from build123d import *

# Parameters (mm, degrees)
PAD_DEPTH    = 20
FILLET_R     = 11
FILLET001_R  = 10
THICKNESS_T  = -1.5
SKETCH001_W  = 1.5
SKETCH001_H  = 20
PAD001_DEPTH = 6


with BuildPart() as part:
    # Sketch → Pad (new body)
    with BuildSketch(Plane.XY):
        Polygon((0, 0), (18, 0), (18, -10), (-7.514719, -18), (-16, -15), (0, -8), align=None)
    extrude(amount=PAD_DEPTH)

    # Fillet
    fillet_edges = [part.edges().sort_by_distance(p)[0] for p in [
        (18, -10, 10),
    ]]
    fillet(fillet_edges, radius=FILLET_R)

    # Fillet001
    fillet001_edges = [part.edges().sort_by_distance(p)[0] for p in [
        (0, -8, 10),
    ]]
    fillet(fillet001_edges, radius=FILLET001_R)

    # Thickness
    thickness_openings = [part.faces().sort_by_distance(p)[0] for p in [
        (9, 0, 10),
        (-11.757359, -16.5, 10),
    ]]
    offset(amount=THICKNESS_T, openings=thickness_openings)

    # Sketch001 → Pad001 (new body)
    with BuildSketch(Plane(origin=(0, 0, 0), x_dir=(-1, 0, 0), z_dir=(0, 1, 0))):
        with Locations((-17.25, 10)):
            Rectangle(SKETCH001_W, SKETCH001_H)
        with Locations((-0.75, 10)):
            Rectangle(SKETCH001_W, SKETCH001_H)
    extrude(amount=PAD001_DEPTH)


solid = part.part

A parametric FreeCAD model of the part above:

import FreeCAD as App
import Part
import Sketcher

V = App.Vector
Q = App.Units.Quantity


def edges_at(feature, points):
    """Names of the edges that pass closest to the given points."""
    edges = feature.Shape.Edges
    near = lambda p: min(range(len(edges)), key=lambda i: edges[i].distToShape(Part.Vertex(*p))[0])
    return sorted({f"Edge{near(p) + 1}" for p in points})


def faces_at(feature, points):
    """Names of the faces that lie closest to the given points."""
    faces = feature.Shape.Faces
    near = lambda p: min(range(len(faces)), key=lambda i: faces[i].distToShape(Part.Vertex(*p))[0])
    return sorted({f"Face{near(p) + 1}" for p in points})

doc = App.newDocument("Part")
body = doc.addObject("PartDesign::Body", "Body")

sketch1 = body.newObject("Sketcher::SketchObject", "Sketch")
sketch1.AttachmentSupport = (doc.getObject("XY_Plane"), [""])
sketch1.MapMode = "FlatFace"
sketch1.addGeometry([
    Part.LineSegment(V(18, 0, 0), V(0, 0, 0)),
    Part.LineSegment(V(0, 0, 0), V(0, -8, 0)),
    Part.LineSegment(V(0, -8, 0), V(-16, -15, 0)),
    Part.LineSegment(V(-16, -15, 0), V(-7.514719, -18, 0)),
    Part.LineSegment(V(-7.514719, -18, 0), V(18, -10, 0)),
    Part.LineSegment(V(18, -10, 0), V(18, 0, 0)),
], False)
sketch1.addConstraint([
    Sketcher.Constraint("Coincident", 0, 2, 1, 1),
    Sketcher.Constraint("Coincident", 1, 2, 2, 1),
    Sketcher.Constraint("Coincident", 2, 2, 3, 1),
    Sketcher.Constraint("Coincident", 3, 2, 4, 1),
    Sketcher.Constraint("Coincident", 4, 2, 5, 1),
    Sketcher.Constraint("Coincident", 5, 2, 0, 1),
    Sketcher.Constraint("Horizontal", 0),
    Sketcher.Constraint("Vertical", 1),
    Sketcher.Constraint("Vertical", 5),
    Sketcher.Constraint("Coincident", 0, 2, -1, 1),
    Sketcher.Constraint("DistanceX", 0, 2, 0, 1, Q("18 mm")),
    Sketcher.Constraint("DistanceY", 1, 2, 1, 1, Q("8 mm")),
    Sketcher.Constraint("DistanceY", 5, 1, 5, 2, Q("10 mm")),
    Sketcher.Constraint("Distance", 3, Q("9 mm")),
    Sketcher.Constraint("DistanceX", 2, 2, -1, 1, Q("16 mm")),
    Sketcher.Constraint("DistanceY", 2, 2, -1, 1, Q("15 mm")),
    Sketcher.Constraint("DistanceY", 3, 2, -1, 1, Q("18 mm")),
])
pad1 = body.newObject("PartDesign::Pad", "Pad")
pad1.Profile = sketch1
pad1.Length = 20
doc.recompute()

fillet = body.newObject("PartDesign::Fillet", "Fillet")
fillet.Base = (pad1, edges_at(pad1, [(18, -10, 10)]))
fillet.Radius = 11
doc.recompute()

fillet2 = body.newObject("PartDesign::Fillet", "Fillet001")
fillet2.Base = (fillet, edges_at(fillet, [(0, -8, 10)]))
fillet2.Radius = 10
doc.recompute()

thickness = body.newObject("PartDesign::Thickness", "Thickness")
thickness.Base = (fillet2, faces_at(fillet2, [(9, 0, 10), (-11.757, -16.5, 10)]))
thickness.Value = 1.5
thickness.Reversed = True
thickness.Join = "Arc"

sketch2 = body.newObject("Sketcher::SketchObject", "Sketch001")
sketch2.AttachmentSupport = (doc.getObject("XZ_Plane"), [""])
sketch2.MapMode = "FlatFace"
sketch2.addGeometry([
    Part.LineSegment(V(18, 20, 0), V(18, 0, 0)),
    Part.LineSegment(V(18, 0, 0), V(16.5, 0, 0)),
    Part.LineSegment(V(16.5, 0, 0), V(16.5, 20, 0)),
    Part.LineSegment(V(16.5, 20, 0), V(18, 20, 0)),
    Part.LineSegment(V(1.5, 20, 0), V(1.5, 0, 0)),
    Part.LineSegment(V(1.5, 0, 0), V(0, 0, 0)),
    Part.LineSegment(V(0, 0, 0), V(0, 20, 0)),
    Part.LineSegment(V(0, 20, 0), V(1.5, 20, 0)),
], False)
sketch2.addConstraint([
    Sketcher.Constraint("Coincident", 0, 2, 1, 1),
    Sketcher.Constraint("Coincident", 1, 2, 2, 1),
    Sketcher.Constraint("Coincident", 2, 2, 3, 1),
    Sketcher.Constraint("Coincident", 3, 2, 0, 1),
    Sketcher.Constraint("Coincident", 4, 2, 5, 1),
    Sketcher.Constraint("Coincident", 5, 2, 6, 1),
    Sketcher.Constraint("Coincident", 6, 2, 7, 1),
    Sketcher.Constraint("Coincident", 7, 2, 4, 1),
    Sketcher.Constraint("Vertical", 0),
    Sketcher.Constraint("Horizontal", 1),
    Sketcher.Constraint("Vertical", 2),
    Sketcher.Constraint("Horizontal", 3),
    Sketcher.Constraint("Vertical", 4),
    Sketcher.Constraint("Horizontal", 5),
    Sketcher.Constraint("Vertical", 6),
    Sketcher.Constraint("Horizontal", 7),
    Sketcher.Constraint("Coincident", 5, 2, -1, 1),
    Sketcher.Constraint("PointOnObject", 0, 2, -1),
    Sketcher.Constraint("Horizontal", 3, 2, 6, 2),
    Sketcher.Constraint("Equal", 3, 5),
    Sketcher.Constraint("DistanceY", 0, 2, 0, 1, Q("20 mm")),
    Sketcher.Constraint("DistanceX", 1, 2, 1, 1, Q("1.5 mm")),
    Sketcher.Constraint("DistanceX", -1, 1, 0, 2, Q("18 mm")),
])
pad2 = body.newObject("PartDesign::Pad", "Pad001")
pad2.Profile = sketch2
pad2.Length = 6
pad2.Reversed = True

doc.recompute()
